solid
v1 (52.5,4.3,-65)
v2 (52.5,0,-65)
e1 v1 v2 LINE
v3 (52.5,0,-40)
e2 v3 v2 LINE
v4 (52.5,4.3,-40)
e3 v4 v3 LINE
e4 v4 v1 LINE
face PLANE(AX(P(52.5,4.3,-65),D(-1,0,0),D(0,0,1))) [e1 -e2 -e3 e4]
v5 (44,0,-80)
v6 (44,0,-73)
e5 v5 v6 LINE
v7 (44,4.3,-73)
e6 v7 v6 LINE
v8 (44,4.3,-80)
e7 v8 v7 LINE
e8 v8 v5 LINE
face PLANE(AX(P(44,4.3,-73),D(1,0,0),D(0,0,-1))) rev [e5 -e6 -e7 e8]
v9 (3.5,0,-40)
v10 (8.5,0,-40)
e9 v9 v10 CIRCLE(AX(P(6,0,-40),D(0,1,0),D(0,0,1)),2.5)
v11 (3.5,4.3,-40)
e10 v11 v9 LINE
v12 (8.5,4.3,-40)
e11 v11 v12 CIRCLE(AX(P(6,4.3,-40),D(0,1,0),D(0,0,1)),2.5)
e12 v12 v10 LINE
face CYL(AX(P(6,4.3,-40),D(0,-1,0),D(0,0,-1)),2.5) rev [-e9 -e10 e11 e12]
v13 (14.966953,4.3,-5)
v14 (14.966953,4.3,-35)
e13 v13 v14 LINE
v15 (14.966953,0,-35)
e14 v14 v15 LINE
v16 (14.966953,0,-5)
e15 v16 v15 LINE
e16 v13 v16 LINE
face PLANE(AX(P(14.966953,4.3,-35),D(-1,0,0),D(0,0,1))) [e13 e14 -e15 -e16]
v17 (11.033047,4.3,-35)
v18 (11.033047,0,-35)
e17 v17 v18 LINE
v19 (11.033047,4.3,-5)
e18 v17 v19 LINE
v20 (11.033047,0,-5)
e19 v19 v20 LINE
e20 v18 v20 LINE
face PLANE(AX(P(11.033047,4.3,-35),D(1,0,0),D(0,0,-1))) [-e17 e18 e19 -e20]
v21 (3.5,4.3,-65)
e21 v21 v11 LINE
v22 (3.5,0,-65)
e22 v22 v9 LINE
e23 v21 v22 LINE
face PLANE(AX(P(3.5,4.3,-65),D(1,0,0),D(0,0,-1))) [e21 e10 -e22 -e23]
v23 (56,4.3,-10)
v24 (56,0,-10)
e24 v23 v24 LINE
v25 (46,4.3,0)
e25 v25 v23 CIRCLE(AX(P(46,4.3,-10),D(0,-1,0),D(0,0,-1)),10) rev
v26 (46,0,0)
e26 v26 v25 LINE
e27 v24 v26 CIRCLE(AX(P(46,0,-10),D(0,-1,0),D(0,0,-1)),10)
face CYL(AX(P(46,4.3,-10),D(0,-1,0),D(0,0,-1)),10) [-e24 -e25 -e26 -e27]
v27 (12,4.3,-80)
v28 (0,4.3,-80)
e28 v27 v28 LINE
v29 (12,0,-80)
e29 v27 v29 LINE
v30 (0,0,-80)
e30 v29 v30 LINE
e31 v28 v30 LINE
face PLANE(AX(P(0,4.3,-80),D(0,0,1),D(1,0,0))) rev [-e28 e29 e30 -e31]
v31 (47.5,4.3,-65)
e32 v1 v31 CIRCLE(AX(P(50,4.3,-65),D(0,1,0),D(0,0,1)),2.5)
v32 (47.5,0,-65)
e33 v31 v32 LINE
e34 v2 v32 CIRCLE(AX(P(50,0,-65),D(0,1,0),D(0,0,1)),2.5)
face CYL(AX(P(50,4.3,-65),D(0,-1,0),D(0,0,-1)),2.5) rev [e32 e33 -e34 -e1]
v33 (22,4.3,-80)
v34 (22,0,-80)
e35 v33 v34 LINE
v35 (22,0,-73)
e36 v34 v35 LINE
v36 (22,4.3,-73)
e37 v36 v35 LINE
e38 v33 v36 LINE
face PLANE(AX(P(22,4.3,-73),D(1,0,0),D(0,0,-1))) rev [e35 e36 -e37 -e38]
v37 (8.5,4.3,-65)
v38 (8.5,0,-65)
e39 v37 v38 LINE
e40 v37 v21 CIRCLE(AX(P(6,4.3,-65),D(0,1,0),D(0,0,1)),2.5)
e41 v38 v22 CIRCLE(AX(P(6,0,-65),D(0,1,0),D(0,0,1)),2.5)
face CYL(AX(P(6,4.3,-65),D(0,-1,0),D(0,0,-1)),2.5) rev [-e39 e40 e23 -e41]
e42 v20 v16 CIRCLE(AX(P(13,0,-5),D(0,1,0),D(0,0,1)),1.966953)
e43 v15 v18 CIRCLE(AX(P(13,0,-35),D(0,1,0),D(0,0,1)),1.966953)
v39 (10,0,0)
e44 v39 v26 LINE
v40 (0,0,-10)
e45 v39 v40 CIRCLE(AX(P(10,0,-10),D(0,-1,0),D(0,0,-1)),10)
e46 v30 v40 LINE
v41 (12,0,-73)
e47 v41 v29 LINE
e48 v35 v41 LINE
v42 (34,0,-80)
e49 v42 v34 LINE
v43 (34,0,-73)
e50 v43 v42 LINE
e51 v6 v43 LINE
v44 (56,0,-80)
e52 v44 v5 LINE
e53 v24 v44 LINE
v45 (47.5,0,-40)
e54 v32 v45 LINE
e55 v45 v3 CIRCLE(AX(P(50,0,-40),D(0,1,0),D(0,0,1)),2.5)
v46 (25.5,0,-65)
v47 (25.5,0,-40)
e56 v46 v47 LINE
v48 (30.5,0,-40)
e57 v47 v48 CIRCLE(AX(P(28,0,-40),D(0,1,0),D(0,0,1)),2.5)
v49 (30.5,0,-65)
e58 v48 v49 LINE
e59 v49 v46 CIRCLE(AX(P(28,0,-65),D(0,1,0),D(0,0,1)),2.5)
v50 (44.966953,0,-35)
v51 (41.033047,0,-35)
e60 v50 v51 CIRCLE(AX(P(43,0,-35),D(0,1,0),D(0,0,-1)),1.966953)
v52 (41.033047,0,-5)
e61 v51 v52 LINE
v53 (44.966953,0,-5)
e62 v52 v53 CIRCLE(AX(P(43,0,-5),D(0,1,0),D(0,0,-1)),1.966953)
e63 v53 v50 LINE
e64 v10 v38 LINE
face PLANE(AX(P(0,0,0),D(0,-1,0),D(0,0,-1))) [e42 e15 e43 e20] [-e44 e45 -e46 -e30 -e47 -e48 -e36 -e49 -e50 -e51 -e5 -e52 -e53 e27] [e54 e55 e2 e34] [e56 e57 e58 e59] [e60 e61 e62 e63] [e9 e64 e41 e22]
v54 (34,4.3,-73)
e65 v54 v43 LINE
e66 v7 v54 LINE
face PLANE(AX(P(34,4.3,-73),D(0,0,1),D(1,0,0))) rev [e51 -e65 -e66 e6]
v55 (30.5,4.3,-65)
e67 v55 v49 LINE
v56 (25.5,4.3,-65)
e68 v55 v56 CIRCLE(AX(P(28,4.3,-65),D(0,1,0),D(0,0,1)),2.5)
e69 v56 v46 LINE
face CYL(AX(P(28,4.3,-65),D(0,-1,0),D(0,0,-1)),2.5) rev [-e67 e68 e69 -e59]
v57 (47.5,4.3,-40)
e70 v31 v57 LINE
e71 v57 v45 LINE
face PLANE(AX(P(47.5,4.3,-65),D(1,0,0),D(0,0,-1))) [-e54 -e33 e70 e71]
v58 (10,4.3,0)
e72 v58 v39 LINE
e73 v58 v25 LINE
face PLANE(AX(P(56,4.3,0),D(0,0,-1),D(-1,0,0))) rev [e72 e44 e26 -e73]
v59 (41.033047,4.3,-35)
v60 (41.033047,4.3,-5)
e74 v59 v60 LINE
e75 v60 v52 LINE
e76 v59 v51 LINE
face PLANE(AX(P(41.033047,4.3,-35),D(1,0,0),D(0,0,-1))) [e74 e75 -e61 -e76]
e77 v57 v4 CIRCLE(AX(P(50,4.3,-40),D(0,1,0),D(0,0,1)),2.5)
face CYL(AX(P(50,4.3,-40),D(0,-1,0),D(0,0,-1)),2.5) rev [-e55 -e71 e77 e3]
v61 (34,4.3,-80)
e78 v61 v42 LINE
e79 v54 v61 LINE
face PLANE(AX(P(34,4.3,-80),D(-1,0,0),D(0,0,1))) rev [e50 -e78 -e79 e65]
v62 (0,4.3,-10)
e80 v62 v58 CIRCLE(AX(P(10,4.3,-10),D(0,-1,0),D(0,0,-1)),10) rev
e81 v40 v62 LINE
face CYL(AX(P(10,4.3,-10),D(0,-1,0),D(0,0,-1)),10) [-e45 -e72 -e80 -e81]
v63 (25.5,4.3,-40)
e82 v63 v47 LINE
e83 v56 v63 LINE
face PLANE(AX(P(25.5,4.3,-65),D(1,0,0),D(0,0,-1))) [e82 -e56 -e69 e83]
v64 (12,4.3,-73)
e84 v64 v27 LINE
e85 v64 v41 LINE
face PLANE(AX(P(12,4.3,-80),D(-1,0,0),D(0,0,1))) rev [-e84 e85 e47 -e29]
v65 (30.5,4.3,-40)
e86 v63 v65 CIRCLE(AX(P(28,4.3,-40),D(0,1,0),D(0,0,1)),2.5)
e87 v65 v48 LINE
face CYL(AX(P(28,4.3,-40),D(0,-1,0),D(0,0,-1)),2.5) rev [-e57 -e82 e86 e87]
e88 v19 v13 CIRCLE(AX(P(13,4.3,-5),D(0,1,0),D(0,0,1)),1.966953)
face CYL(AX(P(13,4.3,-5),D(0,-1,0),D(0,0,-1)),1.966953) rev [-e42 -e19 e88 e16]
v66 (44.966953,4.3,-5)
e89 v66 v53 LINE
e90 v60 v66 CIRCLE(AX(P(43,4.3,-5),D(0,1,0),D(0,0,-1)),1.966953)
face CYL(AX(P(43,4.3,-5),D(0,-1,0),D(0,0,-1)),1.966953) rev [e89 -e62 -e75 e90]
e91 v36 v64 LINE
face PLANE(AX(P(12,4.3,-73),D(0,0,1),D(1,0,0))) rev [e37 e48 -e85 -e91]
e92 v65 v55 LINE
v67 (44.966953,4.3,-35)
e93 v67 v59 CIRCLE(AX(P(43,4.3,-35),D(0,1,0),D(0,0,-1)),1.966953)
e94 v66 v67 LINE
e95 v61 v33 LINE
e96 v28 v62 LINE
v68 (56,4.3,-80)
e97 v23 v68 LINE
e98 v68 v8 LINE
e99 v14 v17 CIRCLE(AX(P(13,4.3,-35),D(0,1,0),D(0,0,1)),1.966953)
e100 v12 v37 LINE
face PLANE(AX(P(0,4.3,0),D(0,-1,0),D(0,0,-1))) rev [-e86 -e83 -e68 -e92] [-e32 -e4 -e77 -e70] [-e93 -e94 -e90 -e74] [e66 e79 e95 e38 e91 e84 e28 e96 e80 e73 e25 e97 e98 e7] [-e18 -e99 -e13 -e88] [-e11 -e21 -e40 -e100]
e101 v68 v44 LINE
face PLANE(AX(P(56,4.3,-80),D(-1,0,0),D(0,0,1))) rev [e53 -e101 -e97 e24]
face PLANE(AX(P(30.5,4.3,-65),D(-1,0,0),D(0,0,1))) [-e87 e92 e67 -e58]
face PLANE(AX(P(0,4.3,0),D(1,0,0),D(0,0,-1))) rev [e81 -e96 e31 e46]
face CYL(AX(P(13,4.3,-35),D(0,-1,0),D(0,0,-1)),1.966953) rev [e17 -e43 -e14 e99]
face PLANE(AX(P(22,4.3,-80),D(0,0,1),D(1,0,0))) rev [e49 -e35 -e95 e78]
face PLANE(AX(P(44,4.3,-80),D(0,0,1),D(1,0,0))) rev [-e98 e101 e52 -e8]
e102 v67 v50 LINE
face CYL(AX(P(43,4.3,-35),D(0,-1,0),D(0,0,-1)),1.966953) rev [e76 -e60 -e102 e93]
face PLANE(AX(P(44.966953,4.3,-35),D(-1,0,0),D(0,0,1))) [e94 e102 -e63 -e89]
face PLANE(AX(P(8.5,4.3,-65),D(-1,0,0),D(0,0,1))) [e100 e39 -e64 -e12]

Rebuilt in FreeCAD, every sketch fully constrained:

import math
import FreeCAD as App
import Part
import Sketcher


def edges_at(feature, points):
    """Names of the edges that pass closest to the given points."""
    edges = feature.Shape.Edges
    near = lambda p: min(range(len(edges)), key=lambda i: edges[i].distToShape(Part.Vertex(*p))[0])
    return sorted({f"Edge{near(p) + 1}" for p in points})


def add_polygon(sketch, points):
    """Adds a closed chain of lines whose ends are joined by coincident constraints."""
    first, n = sketch.GeometryCount, len(points)
    for a, b in zip(points, points[1:] + points[:1]):
        sketch.addGeometry(Part.LineSegment(App.Vector(*a, 0), App.Vector(*b, 0)), False)
    for i in range(n):
        sketch.addConstraint(Sketcher.Constraint("Coincident", first + i, 2, first + (i + 1) % n, 1))

doc = App.newDocument("Part")
body = doc.addObject("PartDesign::Body", "Body")

# Sketch on XZ plane
sketch1 = doc.addObject("Sketcher::SketchObject", "Sketch")
body.addObject(sketch1)
sketch1.AttachmentSupport = (doc.XZ_Plane, [""])
sketch1.MapMode = "FlatFace"
add_polygon(sketch1, [(0, -80), (0, 0), (56, 0), (56, -80), (44, -80), (44, -73), (34, -73), (34, -80), (22, -80), (22, -73), (12, -73), (12, -80)])  # lines 0-11
sketch1.addGeometry(Part.ArcOfCircle(Part.Circle(App.Vector(43, -35, 0), App.Vector(0, 0, 1), 2), math.radians(180), math.radians(360)), False)  # 12
sketch1.addGeometry(Part.LineSegment(App.Vector(45, -35, 0), App.Vector(45, -5, 0)), False)  # 13
sketch1.addGeometry(Part.ArcOfCircle(Part.Circle(App.Vector(43, -5, 0), App.Vector(0, 0, 1), 2), math.radians(0), math.radians(180)), False)  # 14
sketch1.addGeometry(Part.LineSegment(App.Vector(41, -5, 0), App.Vector(41, -35, 0)), False)  # 15
sketch1.addGeometry(Part.LineSegment(App.Vector(15, -35, 0), App.Vector(15, -5, 0)), False)  # 16
sketch1.addGeometry(Part.ArcOfCircle(Part.Circle(App.Vector(13, -5, 0), App.Vector(0, 0, 1), 2), math.radians(0), math.radians(180)), False)  # 17
sketch1.addGeometry(Part.LineSegment(App.Vector(11, -5, 0), App.Vector(11, -35, 0)), False)  # 18
sketch1.addGeometry(Part.ArcOfCircle(Part.Circle(App.Vector(13, -35, 0), App.Vector(0, 0, 1), 2), math.radians(180), math.radians(360)), False)  # 19
sketch1.addGeometry(Part.ArcOfCircle(Part.Circle(App.Vector(50, -65, 0), App.Vector(0, 0, 1), 2.5), math.radians(180), math.radians(360)), False)  # 20
sketch1.addGeometry(Part.LineSegment(App.Vector(52.5, -65, 0), App.Vector(52.5, -40, 0)), False)  # 21
sketch1.addGeometry(Part.ArcOfCircle(Part.Circle(App.Vector(50, -40, 0), App.Vector(0, 0, 1), 2.5), math.radians(0), math.radians(180)), False)  # 22
sketch1.addGeometry(Part.LineSegment(App.Vector(47.5, -40, 0), App.Vector(47.5, -65, 0)), False)  # 23
sketch1.addGeometry(Part.ArcOfCircle(Part.Circle(App.Vector(28, -65, 0), App.Vector(0, 0, 1), 2.5), math.radians(180), math.radians(360)), False)  # 24
sketch1.addGeometry(Part.LineSegment(App.Vector(30.5, -65, 0), App.Vector(30.5, -40, 0)), False)  # 25
sketch1.addGeometry(Part.ArcOfCircle(Part.Circle(App.Vector(28, -40, 0), App.Vector(0, 0, 1), 2.5), math.radians(0), math.radians(180)), False)  # 26
sketch1.addGeometry(Part.LineSegment(App.Vector(25.5, -40, 0), App.Vector(25.5, -65, 0)), False)  # 27
sketch1.addGeometry(Part.LineSegment(App.Vector(8.5, -65, 0), App.Vector(8.5, -40, 0)), False)  # 28
sketch1.addGeometry(Part.ArcOfCircle(Part.Circle(App.Vector(6, -40, 0), App.Vector(0, 0, 1), 2.5), math.radians(0), math.radians(180)), False)  # 29
sketch1.addGeometry(Part.LineSegment(App.Vector(3.5, -40, 0), App.Vector(3.5, -65, 0)), False)  # 30
sketch1.addGeometry(Part.ArcOfCircle(Part.Circle(App.Vector(6, -65, 0), App.Vector(0, 0, 1), 2.5), math.radians(180), math.radians(360)), False)  # 31
sketch1.addConstraint([
    Sketcher.Constraint("Tangent", 12, 2, 13, 1),
    Sketcher.Constraint("Tangent", 13, 2, 14, 1),
    Sketcher.Constraint("Tangent", 14, 2, 15, 1),
    Sketcher.Constraint("Tangent", 15, 2, 12, 1),
    Sketcher.Constraint("Tangent", 16, 2, 17, 1),
    Sketcher.Constraint("Tangent", 17, 2, 18, 1),
    Sketcher.Constraint("Tangent", 18, 2, 19, 1),
    Sketcher.Constraint("Tangent", 19, 2, 16, 1),
    Sketcher.Constraint("Tangent", 20, 2, 21, 1),
    Sketcher.Constraint("Tangent", 21, 2, 22, 1),
    Sketcher.Constraint("Tangent", 22, 2, 23, 1),
    Sketcher.Constraint("Tangent", 23, 2, 20, 1),
    Sketcher.Constraint("Tangent", 24, 2, 25, 1),
    Sketcher.Constraint("Tangent", 25, 2, 26, 1),
    Sketcher.Constraint("Tangent", 26, 2, 27, 1),
    Sketcher.Constraint("Tangent", 27, 2, 24, 1),
    Sketcher.Constraint("Tangent", 28, 2, 29, 1),
    Sketcher.Constraint("Tangent", 29, 2, 30, 1),
    Sketcher.Constraint("Tangent", 30, 2, 31, 1),
    Sketcher.Constraint("Tangent", 31, 2, 28, 1),
    Sketcher.Constraint("Vertical", 0),
    Sketcher.Constraint("Horizontal", 1),
    Sketcher.Constraint("Vertical", 2),
    Sketcher.Constraint("Horizontal", 3),
    Sketcher.Constraint("Vertical", 4),
    Sketcher.Constraint("Horizontal", 5),
    Sketcher.Constraint("Vertical", 6),
    Sketcher.Constraint("Horizontal", 7),
    Sketcher.Constraint("Vertical", 8),
    Sketcher.Constraint("Horizontal", 9),
    Sketcher.Constraint("Vertical", 10),
    Sketcher.Constraint("Horizontal", 11),
    Sketcher.Constraint("Vertical", 13),
    Sketcher.Constraint("Vertical", 15),
    Sketcher.Constraint("Vertical", 16),
    Sketcher.Constraint("Vertical", 18),
    Sketcher.Constraint("Vertical", 21),
    Sketcher.Constraint("Vertical", 23),
    Sketcher.Constraint("Vertical", 25),
    Sketcher.Constraint("Vertical", 27),
    Sketcher.Constraint("Vertical", 28),
    Sketcher.Constraint("Vertical", 30),
    Sketcher.Constraint("Coincident", 0, 2, -1, 1),
    Sketcher.Constraint("Equal", 14, 17),
    Sketcher.Constraint("Equal", 22, 24),
    Sketcher.Constraint("Equal", 26, 29),
    Sketcher.Constraint("Horizontal", 14, 3, 17, 3),
    Sketcher.Constraint("Horizontal", 12, 3, 19, 3),
    Sketcher.Constraint("Horizontal", 20, 3, 24, 3),
    Sketcher.Constraint("Horizontal", 22, 3, 26, 3),
    Sketcher.Constraint("Horizontal", 26, 3, 29, 3),
    Sketcher.Constraint("Horizontal", 24, 3, 31, 3),
    Sketcher.Constraint("Horizontal", 3, 2, 6, 2),
    Sketcher.Constraint("Horizontal", 5, 2, 8, 2),
    Sketcher.Constraint("Horizontal", 7, 2, 10, 2),
    Sketcher.Constraint("Equal", 3, 7),
    Sketcher.Constraint("Equal", 5, 9),
    Sketcher.Constraint("Equal", 7, 11),
    Sketcher.Constraint("Radius", 20, 2.5),
    Sketcher.Constraint("DistanceX", 1, 1, 1, 2, 56.0),
    Sketcher.Constraint("DistanceX", 3, 2, 3, 1, 12.0),
    Sketcher.Constraint("DistanceY", 0, 1, 0, 2, 80.0),
    Sketcher.Constraint("DistanceY", 4, 1, 4, 2, 7.0),
    Sketcher.Constraint("DistanceY", 13, 1, 13, 2, 30.0),
    Sketcher.Constraint("DistanceY", 21, 1, 21, 2, 25.0),
    Sketcher.Constraint("DistanceX", -1, 1, 12, 3, 43.0),
    Sketcher.Constraint("DistanceY", 12, 3, -1, 1, 35.0),
    Sketcher.Constraint("DistanceX", -1, 1, 17, 3, 13.0),
    Sketcher.Constraint("DistanceX", -1, 1, 20, 3, 50.0),
    Sketcher.Constraint("DistanceY", 20, 3, -1, 1, 65.0),
    Sketcher.Constraint("DistanceX", -1, 1, 24, 3, 28.0),
    Sketcher.Constraint("DistanceX", -1, 1, 29, 3, 6.0),
    Sketcher.Constraint("Radius", 12, 1.966953),
])
pad1 = doc.addObject("PartDesign::Pad", "Pad")
body.addObject(pad1)
pad1.Profile = sketch1
pad1.Length = 4.3
pad1.Reversed = True
doc.recompute()

fillet = doc.addObject("PartDesign::Fillet", "Fillet")
body.addObject(fillet)
fillet.Base = (pad1, edges_at(pad1, [(0, 2.15, 0), (56, 2.15, 0)]))
fillet.Radius = 10

doc.recompute()
